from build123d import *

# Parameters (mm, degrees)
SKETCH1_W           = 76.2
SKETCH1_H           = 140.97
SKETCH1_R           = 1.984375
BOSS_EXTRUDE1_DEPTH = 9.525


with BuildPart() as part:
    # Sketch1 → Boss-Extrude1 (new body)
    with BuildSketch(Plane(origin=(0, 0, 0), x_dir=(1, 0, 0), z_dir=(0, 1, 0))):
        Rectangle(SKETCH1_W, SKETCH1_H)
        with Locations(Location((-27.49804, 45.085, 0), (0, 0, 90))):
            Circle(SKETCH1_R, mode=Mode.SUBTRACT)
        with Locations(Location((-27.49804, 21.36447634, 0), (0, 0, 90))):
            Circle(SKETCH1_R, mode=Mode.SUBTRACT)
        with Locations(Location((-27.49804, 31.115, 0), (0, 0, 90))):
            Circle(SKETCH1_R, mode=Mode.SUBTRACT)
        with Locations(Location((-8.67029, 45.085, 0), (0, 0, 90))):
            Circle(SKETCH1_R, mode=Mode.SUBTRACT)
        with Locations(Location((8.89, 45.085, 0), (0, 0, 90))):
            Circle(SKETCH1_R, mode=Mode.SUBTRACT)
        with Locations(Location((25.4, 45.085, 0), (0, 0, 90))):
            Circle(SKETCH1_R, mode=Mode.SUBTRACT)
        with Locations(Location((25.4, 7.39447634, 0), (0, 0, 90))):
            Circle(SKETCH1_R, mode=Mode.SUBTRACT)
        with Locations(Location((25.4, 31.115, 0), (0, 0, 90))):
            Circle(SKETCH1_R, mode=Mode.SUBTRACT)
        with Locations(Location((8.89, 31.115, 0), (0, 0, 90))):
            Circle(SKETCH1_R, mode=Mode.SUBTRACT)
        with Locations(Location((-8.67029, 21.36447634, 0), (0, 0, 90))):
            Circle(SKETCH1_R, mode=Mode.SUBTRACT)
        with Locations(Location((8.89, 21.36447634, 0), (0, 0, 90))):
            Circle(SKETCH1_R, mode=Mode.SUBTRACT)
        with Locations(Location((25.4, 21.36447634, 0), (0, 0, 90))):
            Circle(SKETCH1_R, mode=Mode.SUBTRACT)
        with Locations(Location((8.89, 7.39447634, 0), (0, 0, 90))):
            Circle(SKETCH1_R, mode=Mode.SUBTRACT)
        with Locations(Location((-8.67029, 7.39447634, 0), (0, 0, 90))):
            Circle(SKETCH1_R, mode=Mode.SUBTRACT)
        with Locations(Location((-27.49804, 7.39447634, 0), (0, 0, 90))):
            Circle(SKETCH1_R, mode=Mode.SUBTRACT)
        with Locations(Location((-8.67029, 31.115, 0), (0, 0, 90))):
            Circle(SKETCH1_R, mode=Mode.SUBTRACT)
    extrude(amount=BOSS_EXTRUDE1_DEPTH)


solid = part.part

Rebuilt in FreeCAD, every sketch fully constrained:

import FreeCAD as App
import Part
import Sketcher
from FreeCAD import Vector
Q = App.Units.Quantity


def add_polygon(sketch, points):
    """Adds a closed chain of lines whose ends are joined by coincident constraints."""
    first, n = sketch.GeometryCount, len(points)
    for a, b in zip(points, points[1:] + points[:1]):
        sketch.addGeometry(Part.LineSegment(App.Vector(*a, 0), App.Vector(*b, 0)), False)
    for i in range(n):
        sketch.addConstraint(Sketcher.Constraint("Coincident", first + i, 2, first + (i + 1) % n, 1))

doc = App.newDocument("Part")
body = doc.addObject("PartDesign::Body", "Body")

# Sketch on XZ plane
sketch1 = body.newObject("Sketcher::SketchObject", "Sketch")
sketch1.AttachmentSupport = (doc.getObject("XZ_Plane"), [""])
sketch1.MapMode = "FlatFace"
add_polygon(sketch1, [(-38.1, -70.5), (-38.1, 70.5), (38.1, 70.5), (38.1, -70.5)])  # lines 0-3
sketch1.addGeometry(Part.Circle(Vector(-27.5, -7.4, 0), Vector(0, 0, 1), 2), False)  # 4
sketch1.addGeometry(Part.Circle(Vector(-8.7, -7.4, 0), Vector(0, 0, 1), 2), False)  # 5
sketch1.addGeometry(Part.Circle(Vector(-27.5, -21.4, 0), Vector(0, 0, 1), 2), False)  # 6
sketch1.addGeometry(Part.Circle(Vector(-8.7, -21.4, 0), Vector(0, 0, 1), 2), False)  # 7
sketch1.addGeometry(Part.Circle(Vector(8.9, -7.4, 0), Vector(0, 0, 1), 2), False)  # 8
sketch1.addGeometry(Part.Circle(Vector(25.4, -7.4, 0), Vector(0, 0, 1), 2), False)  # 9
sketch1.addGeometry(Part.Circle(Vector(8.9, -21.4, 0), Vector(0, 0, 1), 2), False)  # 10
sketch1.addGeometry(Part.Circle(Vector(25.4, -21.4, 0), Vector(0, 0, 1), 2), False)  # 11
sketch1.addGeometry(Part.Circle(Vector(-27.5, -31.1, 0), Vector(0, 0, 1), 2), False)  # 12
sketch1.addGeometry(Part.Circle(Vector(-8.7, -31.1, 0), Vector(0, 0, 1), 2), False)  # 13
sketch1.addGeometry(Part.Circle(Vector(-27.5, -45.1, 0), Vector(0, 0, 1), 2), False)  # 14
sketch1.addGeometry(Part.Circle(Vector(-8.7, -45.1, 0), Vector(0, 0, 1), 2), False)  # 15
sketch1.addGeometry(Part.Circle(Vector(8.9, -31.1, 0), Vector(0, 0, 1), 2), False)  # 16
sketch1.addGeometry(Part.Circle(Vector(25.4, -31.1, 0), Vector(0, 0, 1), 2), False)  # 17
sketch1.addGeometry(Part.Circle(Vector(8.9, -45.1, 0), Vector(0, 0, 1), 2), False)  # 18
sketch1.addGeometry(Part.Circle(Vector(25.4, -45.1, 0), Vector(0, 0, 1), 2), False)  # 19
sketch1.addConstraint(Sketcher.Constraint("Vertical", 0))
sketch1.addConstraint(Sketcher.Constraint("Horizontal", 1))
sketch1.addConstraint(Sketcher.Constraint("Vertical", 2))
sketch1.addConstraint(Sketcher.Constraint("Horizontal", 3))
sketch1.addConstraint(Sketcher.Constraint("Equal", 4, 5))
sketch1.addConstraint(Sketcher.Constraint("Equal", 5, 6))
sketch1.addConstraint(Sketcher.Constraint("Equal", 6, 7))
sketch1.addConstraint(Sketcher.Constraint("Equal", 7, 8))
sketch1.addConstraint(Sketcher.Constraint("Equal", 8, 9))
sketch1.addConstraint(Sketcher.Constraint("Equal", 9, 10))
sketch1.addConstraint(Sketcher.Constraint("Equal", 10, 11))
sketch1.addConstraint(Sketcher.Constraint("Equal", 11, 12))
sketch1.addConstraint(Sketcher.Constraint("Equal", 12, 13))
sketch1.addConstraint(Sketcher.Constraint("Equal", 13, 14))
sketch1.addConstraint(Sketcher.Constraint("Equal", 14, 15))
sketch1.addConstraint(Sketcher.Constraint("Equal", 15, 16))
sketch1.addConstraint(Sketcher.Constraint("Equal", 16, 17))
sketch1.addConstraint(Sketcher.Constraint("Equal", 17, 18))
sketch1.addConstraint(Sketcher.Constraint("Equal", 18, 19))
sketch1.addConstraint(Sketcher.Constraint("Symmetric", 0, 2, 2, 2, -1, 1))
sketch1.addConstraint(Sketcher.Constraint("Horizontal", 4, 3, 5, 3))
sketch1.addConstraint(Sketcher.Constraint("Horizontal", 6, 3, 7, 3))
sketch1.addConstraint(Sketcher.Constraint("Horizontal", 5, 3, 8, 3))
sketch1.addConstraint(Sketcher.Constraint("Horizontal", 8, 3, 9, 3))
sketch1.addConstraint(Sketcher.Constraint("Horizontal", 7, 3, 10, 3))
sketch1.addConstraint(Sketcher.Constraint("Horizontal", 10, 3, 11, 3))
sketch1.addConstraint(Sketcher.Constraint("Horizontal", 12, 3, 13, 3))
sketch1.addConstraint(Sketcher.Constraint("Horizontal", 14, 3, 15, 3))
sketch1.addConstraint(Sketcher.Constraint("Horizontal", 13, 3, 16, 3))
sketch1.addConstraint(Sketcher.Constraint("Horizontal", 16, 3, 17, 3))
sketch1.addConstraint(Sketcher.Constraint("Horizontal", 15, 3, 18, 3))
sketch1.addConstraint(Sketcher.Constraint("Horizontal", 18, 3, 19, 3))
sketch1.addConstraint(Sketcher.Constraint("Vertical", 4, 3, 6, 3))
sketch1.addConstraint(Sketcher.Constraint("Vertical", 5, 3, 7, 3))
sketch1.addConstraint(Sketcher.Constraint("Vertical", 8, 3, 10, 3))
sketch1.addConstraint(Sketcher.Constraint("Vertical", 9, 3, 11, 3))
sketch1.addConstraint(Sketcher.Constraint("Vertical", 6, 3, 12, 3))
sketch1.addConstraint(Sketcher.Constraint("Vertical", 7, 3, 13, 3))
sketch1.addConstraint(Sketcher.Constraint("Vertical", 12, 3, 14, 3))
sketch1.addConstraint(Sketcher.Constraint("Vertical", 13, 3, 15, 3))
sketch1.addConstraint(Sketcher.Constraint("Vertical", 10, 3, 16, 3))
sketch1.addConstraint(Sketcher.Constraint("Vertical", 11, 3, 17, 3))
sketch1.addConstraint(Sketcher.Constraint("Vertical", 16, 3, 18, 3))
sketch1.addConstraint(Sketcher.Constraint("Vertical", 17, 3, 19, 3))
sketch1.addConstraint(Sketcher.Constraint("DistanceX", 1, 1, 1, 2, Q("3 in")))
sketch1.addConstraint(Sketcher.Constraint("Diameter", 4, Q("0.15625 in")))
sketch1.addConstraint(Sketcher.Constraint("DistanceX", -1, 1, 9, 3, Q("1 in")))
sketch1.addConstraint(Sketcher.Constraint("DistanceY", 2, 2, 19, 3, Q("1 in")))
sketch1.addConstraint(Sketcher.Constraint("DistanceY", 0, 1, 0, 2, Q("5.55 in")))
sketch1.addConstraint(Sketcher.Constraint("DistanceX", -1, 1, 8, 3, Q("0.35 in")))
sketch1.addConstraint(Sketcher.Constraint("DistanceY", 6, 3, 4, 3, Q("0.55 in")))
sketch1.addConstraint(Sketcher.Constraint("DistanceY", 14, 3, 12, 3, Q("0.55 in")))
sketch1.addConstraint(Sketcher.Constraint("DistanceX", 4, 3, -1, 1, Q("1.0826 in")))
sketch1.addConstraint(Sketcher.Constraint("DistanceX", 5, 3, -1, 1, 8.67029))
sketch1.addConstraint(Sketcher.Constraint("DistanceY", 4, 3, -1, 1, 7.394476))
pad1 = body.newObject("PartDesign::Pad", "Pad")
pad1.Profile = sketch1
pad1.Length = Q("0.375 in")
pad1.Reversed = True

doc.recompute()
